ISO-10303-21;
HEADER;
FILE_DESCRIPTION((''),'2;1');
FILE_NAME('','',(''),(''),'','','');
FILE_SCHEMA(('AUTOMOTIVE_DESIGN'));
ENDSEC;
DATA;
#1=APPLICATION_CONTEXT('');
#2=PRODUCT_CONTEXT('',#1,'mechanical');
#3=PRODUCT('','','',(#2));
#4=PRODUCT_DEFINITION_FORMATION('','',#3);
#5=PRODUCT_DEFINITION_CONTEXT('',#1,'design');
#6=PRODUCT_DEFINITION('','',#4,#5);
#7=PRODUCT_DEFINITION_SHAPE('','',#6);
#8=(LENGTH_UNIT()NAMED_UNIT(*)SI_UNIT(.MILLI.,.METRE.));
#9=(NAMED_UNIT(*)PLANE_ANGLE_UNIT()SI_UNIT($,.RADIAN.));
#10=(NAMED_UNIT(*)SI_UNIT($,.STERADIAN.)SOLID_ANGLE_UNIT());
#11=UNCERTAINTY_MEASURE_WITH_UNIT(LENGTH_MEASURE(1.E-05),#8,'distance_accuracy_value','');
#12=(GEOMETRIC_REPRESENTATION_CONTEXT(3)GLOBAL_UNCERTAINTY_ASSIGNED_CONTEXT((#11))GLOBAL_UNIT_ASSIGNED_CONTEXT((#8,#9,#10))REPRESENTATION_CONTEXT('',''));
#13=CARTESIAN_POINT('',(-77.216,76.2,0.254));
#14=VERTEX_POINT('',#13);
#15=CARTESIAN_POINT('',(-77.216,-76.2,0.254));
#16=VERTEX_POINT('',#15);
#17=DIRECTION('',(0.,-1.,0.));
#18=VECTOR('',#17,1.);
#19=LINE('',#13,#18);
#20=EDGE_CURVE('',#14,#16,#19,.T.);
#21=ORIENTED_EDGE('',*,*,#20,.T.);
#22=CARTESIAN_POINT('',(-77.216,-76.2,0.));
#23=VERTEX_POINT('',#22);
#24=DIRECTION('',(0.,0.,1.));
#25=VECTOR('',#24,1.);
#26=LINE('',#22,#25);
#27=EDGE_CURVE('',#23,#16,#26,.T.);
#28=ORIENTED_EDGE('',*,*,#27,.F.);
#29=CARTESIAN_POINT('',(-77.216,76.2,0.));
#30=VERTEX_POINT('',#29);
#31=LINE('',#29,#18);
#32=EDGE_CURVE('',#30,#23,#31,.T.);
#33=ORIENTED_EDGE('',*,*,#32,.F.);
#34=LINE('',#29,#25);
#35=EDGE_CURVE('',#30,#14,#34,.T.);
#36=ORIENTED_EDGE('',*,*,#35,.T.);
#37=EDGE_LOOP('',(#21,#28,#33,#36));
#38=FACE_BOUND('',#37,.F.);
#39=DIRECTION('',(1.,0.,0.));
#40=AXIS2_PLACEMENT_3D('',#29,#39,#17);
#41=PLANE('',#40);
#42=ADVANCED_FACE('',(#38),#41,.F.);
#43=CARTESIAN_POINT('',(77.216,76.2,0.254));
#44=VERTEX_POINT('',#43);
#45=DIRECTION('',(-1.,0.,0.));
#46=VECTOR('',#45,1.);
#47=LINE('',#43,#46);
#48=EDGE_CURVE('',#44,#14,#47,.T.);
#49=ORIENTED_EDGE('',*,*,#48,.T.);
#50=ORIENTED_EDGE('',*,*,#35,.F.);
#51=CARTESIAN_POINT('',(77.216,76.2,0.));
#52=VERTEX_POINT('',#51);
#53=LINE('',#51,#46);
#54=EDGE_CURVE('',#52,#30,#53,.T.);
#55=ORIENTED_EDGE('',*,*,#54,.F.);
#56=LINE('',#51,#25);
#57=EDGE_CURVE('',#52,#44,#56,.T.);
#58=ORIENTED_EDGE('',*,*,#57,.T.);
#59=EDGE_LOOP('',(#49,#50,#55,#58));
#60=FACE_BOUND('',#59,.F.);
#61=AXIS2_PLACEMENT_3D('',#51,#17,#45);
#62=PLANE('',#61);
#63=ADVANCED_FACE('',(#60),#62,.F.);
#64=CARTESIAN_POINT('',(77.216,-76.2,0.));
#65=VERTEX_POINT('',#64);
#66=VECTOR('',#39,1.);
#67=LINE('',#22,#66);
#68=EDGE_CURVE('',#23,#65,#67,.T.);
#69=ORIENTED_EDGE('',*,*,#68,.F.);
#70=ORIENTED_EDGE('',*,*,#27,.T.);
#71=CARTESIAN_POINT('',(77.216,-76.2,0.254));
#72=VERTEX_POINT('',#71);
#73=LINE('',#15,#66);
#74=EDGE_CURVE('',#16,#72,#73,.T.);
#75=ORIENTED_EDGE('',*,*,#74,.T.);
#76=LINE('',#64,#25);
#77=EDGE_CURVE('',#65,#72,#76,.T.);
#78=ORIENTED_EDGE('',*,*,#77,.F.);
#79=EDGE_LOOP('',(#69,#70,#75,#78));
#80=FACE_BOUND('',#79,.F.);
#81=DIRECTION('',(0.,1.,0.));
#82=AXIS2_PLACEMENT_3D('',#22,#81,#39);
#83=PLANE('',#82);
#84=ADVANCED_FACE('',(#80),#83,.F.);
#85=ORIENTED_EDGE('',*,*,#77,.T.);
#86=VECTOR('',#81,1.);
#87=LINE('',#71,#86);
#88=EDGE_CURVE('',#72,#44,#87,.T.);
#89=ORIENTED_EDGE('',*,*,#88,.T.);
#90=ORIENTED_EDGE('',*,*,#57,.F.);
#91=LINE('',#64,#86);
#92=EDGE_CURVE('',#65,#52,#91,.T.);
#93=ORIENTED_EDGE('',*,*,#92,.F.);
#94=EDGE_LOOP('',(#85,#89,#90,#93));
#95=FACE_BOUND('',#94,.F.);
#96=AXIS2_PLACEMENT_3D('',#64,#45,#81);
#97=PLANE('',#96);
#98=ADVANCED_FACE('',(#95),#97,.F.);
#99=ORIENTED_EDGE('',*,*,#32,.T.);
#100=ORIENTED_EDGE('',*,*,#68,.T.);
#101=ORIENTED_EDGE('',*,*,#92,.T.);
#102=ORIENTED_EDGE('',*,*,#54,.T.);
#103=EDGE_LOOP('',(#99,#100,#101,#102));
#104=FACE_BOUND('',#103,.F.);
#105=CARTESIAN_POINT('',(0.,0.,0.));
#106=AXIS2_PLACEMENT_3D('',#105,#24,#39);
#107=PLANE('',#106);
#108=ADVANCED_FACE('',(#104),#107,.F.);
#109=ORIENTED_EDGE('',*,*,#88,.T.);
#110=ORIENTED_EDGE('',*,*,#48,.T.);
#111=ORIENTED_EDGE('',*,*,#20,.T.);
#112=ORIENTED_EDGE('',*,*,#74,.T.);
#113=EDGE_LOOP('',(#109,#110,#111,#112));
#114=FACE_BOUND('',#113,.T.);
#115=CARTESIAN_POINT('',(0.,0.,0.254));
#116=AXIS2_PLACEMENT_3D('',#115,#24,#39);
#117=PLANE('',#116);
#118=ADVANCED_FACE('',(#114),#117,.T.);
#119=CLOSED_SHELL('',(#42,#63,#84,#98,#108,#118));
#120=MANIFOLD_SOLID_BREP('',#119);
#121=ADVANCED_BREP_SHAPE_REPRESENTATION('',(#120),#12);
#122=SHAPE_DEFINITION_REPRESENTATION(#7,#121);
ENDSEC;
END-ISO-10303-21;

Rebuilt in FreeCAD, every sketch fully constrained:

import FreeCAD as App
import Part
import Sketcher
from FreeCAD import Vector
Q = App.Units.Quantity


def add_polygon(sketch, points):
    """Adds a closed chain of lines whose ends are joined by coincident constraints."""
    first, n = sketch.GeometryCount, len(points)
    for a, b in zip(points, points[1:] + points[:1]):
        sketch.addGeometry(Part.LineSegment(App.Vector(*a, 0), App.Vector(*b, 0)), False)
    for i in range(n):
        sketch.addConstraint(Sketcher.Constraint("Coincident", first + i, 2, first + (i + 1) % n, 1))

doc = App.newDocument("Part")
body = doc.addObject("PartDesign::Body", "Body")

# Sketch on XY plane
sketch1 = body.newObject("Sketcher::SketchObject", "Sketch")
sketch1.AttachmentSupport = (doc.getObject("XY_Plane"), [""])
sketch1.MapMode = "FlatFace"
add_polygon(sketch1, [(-77, 76), (-77, -76), (77, -76), (77, 76)])  # lines 0-3
sketch1.addConstraint([
    Sketcher.Constraint("Vertical", 0),
    Sketcher.Constraint("Horizontal", 1),
    Sketcher.Constraint("Vertical", 2),
    Sketcher.Constraint("Horizontal", 3),
    Sketcher.Constraint("Symmetric", 0, 2, 2, 2, -1, 1),
    Sketcher.Constraint("DistanceY", 0, 2, 0, 1, Q("6 in")),
    Sketcher.Constraint("DistanceX", 1, 1, 1, 2, Q("6.08 in")),
])
pad1 = body.newObject("PartDesign::Pad", "Pad")
pad1.Profile = sketch1
pad1.Length = Q("0.01 in")

doc.recompute()
